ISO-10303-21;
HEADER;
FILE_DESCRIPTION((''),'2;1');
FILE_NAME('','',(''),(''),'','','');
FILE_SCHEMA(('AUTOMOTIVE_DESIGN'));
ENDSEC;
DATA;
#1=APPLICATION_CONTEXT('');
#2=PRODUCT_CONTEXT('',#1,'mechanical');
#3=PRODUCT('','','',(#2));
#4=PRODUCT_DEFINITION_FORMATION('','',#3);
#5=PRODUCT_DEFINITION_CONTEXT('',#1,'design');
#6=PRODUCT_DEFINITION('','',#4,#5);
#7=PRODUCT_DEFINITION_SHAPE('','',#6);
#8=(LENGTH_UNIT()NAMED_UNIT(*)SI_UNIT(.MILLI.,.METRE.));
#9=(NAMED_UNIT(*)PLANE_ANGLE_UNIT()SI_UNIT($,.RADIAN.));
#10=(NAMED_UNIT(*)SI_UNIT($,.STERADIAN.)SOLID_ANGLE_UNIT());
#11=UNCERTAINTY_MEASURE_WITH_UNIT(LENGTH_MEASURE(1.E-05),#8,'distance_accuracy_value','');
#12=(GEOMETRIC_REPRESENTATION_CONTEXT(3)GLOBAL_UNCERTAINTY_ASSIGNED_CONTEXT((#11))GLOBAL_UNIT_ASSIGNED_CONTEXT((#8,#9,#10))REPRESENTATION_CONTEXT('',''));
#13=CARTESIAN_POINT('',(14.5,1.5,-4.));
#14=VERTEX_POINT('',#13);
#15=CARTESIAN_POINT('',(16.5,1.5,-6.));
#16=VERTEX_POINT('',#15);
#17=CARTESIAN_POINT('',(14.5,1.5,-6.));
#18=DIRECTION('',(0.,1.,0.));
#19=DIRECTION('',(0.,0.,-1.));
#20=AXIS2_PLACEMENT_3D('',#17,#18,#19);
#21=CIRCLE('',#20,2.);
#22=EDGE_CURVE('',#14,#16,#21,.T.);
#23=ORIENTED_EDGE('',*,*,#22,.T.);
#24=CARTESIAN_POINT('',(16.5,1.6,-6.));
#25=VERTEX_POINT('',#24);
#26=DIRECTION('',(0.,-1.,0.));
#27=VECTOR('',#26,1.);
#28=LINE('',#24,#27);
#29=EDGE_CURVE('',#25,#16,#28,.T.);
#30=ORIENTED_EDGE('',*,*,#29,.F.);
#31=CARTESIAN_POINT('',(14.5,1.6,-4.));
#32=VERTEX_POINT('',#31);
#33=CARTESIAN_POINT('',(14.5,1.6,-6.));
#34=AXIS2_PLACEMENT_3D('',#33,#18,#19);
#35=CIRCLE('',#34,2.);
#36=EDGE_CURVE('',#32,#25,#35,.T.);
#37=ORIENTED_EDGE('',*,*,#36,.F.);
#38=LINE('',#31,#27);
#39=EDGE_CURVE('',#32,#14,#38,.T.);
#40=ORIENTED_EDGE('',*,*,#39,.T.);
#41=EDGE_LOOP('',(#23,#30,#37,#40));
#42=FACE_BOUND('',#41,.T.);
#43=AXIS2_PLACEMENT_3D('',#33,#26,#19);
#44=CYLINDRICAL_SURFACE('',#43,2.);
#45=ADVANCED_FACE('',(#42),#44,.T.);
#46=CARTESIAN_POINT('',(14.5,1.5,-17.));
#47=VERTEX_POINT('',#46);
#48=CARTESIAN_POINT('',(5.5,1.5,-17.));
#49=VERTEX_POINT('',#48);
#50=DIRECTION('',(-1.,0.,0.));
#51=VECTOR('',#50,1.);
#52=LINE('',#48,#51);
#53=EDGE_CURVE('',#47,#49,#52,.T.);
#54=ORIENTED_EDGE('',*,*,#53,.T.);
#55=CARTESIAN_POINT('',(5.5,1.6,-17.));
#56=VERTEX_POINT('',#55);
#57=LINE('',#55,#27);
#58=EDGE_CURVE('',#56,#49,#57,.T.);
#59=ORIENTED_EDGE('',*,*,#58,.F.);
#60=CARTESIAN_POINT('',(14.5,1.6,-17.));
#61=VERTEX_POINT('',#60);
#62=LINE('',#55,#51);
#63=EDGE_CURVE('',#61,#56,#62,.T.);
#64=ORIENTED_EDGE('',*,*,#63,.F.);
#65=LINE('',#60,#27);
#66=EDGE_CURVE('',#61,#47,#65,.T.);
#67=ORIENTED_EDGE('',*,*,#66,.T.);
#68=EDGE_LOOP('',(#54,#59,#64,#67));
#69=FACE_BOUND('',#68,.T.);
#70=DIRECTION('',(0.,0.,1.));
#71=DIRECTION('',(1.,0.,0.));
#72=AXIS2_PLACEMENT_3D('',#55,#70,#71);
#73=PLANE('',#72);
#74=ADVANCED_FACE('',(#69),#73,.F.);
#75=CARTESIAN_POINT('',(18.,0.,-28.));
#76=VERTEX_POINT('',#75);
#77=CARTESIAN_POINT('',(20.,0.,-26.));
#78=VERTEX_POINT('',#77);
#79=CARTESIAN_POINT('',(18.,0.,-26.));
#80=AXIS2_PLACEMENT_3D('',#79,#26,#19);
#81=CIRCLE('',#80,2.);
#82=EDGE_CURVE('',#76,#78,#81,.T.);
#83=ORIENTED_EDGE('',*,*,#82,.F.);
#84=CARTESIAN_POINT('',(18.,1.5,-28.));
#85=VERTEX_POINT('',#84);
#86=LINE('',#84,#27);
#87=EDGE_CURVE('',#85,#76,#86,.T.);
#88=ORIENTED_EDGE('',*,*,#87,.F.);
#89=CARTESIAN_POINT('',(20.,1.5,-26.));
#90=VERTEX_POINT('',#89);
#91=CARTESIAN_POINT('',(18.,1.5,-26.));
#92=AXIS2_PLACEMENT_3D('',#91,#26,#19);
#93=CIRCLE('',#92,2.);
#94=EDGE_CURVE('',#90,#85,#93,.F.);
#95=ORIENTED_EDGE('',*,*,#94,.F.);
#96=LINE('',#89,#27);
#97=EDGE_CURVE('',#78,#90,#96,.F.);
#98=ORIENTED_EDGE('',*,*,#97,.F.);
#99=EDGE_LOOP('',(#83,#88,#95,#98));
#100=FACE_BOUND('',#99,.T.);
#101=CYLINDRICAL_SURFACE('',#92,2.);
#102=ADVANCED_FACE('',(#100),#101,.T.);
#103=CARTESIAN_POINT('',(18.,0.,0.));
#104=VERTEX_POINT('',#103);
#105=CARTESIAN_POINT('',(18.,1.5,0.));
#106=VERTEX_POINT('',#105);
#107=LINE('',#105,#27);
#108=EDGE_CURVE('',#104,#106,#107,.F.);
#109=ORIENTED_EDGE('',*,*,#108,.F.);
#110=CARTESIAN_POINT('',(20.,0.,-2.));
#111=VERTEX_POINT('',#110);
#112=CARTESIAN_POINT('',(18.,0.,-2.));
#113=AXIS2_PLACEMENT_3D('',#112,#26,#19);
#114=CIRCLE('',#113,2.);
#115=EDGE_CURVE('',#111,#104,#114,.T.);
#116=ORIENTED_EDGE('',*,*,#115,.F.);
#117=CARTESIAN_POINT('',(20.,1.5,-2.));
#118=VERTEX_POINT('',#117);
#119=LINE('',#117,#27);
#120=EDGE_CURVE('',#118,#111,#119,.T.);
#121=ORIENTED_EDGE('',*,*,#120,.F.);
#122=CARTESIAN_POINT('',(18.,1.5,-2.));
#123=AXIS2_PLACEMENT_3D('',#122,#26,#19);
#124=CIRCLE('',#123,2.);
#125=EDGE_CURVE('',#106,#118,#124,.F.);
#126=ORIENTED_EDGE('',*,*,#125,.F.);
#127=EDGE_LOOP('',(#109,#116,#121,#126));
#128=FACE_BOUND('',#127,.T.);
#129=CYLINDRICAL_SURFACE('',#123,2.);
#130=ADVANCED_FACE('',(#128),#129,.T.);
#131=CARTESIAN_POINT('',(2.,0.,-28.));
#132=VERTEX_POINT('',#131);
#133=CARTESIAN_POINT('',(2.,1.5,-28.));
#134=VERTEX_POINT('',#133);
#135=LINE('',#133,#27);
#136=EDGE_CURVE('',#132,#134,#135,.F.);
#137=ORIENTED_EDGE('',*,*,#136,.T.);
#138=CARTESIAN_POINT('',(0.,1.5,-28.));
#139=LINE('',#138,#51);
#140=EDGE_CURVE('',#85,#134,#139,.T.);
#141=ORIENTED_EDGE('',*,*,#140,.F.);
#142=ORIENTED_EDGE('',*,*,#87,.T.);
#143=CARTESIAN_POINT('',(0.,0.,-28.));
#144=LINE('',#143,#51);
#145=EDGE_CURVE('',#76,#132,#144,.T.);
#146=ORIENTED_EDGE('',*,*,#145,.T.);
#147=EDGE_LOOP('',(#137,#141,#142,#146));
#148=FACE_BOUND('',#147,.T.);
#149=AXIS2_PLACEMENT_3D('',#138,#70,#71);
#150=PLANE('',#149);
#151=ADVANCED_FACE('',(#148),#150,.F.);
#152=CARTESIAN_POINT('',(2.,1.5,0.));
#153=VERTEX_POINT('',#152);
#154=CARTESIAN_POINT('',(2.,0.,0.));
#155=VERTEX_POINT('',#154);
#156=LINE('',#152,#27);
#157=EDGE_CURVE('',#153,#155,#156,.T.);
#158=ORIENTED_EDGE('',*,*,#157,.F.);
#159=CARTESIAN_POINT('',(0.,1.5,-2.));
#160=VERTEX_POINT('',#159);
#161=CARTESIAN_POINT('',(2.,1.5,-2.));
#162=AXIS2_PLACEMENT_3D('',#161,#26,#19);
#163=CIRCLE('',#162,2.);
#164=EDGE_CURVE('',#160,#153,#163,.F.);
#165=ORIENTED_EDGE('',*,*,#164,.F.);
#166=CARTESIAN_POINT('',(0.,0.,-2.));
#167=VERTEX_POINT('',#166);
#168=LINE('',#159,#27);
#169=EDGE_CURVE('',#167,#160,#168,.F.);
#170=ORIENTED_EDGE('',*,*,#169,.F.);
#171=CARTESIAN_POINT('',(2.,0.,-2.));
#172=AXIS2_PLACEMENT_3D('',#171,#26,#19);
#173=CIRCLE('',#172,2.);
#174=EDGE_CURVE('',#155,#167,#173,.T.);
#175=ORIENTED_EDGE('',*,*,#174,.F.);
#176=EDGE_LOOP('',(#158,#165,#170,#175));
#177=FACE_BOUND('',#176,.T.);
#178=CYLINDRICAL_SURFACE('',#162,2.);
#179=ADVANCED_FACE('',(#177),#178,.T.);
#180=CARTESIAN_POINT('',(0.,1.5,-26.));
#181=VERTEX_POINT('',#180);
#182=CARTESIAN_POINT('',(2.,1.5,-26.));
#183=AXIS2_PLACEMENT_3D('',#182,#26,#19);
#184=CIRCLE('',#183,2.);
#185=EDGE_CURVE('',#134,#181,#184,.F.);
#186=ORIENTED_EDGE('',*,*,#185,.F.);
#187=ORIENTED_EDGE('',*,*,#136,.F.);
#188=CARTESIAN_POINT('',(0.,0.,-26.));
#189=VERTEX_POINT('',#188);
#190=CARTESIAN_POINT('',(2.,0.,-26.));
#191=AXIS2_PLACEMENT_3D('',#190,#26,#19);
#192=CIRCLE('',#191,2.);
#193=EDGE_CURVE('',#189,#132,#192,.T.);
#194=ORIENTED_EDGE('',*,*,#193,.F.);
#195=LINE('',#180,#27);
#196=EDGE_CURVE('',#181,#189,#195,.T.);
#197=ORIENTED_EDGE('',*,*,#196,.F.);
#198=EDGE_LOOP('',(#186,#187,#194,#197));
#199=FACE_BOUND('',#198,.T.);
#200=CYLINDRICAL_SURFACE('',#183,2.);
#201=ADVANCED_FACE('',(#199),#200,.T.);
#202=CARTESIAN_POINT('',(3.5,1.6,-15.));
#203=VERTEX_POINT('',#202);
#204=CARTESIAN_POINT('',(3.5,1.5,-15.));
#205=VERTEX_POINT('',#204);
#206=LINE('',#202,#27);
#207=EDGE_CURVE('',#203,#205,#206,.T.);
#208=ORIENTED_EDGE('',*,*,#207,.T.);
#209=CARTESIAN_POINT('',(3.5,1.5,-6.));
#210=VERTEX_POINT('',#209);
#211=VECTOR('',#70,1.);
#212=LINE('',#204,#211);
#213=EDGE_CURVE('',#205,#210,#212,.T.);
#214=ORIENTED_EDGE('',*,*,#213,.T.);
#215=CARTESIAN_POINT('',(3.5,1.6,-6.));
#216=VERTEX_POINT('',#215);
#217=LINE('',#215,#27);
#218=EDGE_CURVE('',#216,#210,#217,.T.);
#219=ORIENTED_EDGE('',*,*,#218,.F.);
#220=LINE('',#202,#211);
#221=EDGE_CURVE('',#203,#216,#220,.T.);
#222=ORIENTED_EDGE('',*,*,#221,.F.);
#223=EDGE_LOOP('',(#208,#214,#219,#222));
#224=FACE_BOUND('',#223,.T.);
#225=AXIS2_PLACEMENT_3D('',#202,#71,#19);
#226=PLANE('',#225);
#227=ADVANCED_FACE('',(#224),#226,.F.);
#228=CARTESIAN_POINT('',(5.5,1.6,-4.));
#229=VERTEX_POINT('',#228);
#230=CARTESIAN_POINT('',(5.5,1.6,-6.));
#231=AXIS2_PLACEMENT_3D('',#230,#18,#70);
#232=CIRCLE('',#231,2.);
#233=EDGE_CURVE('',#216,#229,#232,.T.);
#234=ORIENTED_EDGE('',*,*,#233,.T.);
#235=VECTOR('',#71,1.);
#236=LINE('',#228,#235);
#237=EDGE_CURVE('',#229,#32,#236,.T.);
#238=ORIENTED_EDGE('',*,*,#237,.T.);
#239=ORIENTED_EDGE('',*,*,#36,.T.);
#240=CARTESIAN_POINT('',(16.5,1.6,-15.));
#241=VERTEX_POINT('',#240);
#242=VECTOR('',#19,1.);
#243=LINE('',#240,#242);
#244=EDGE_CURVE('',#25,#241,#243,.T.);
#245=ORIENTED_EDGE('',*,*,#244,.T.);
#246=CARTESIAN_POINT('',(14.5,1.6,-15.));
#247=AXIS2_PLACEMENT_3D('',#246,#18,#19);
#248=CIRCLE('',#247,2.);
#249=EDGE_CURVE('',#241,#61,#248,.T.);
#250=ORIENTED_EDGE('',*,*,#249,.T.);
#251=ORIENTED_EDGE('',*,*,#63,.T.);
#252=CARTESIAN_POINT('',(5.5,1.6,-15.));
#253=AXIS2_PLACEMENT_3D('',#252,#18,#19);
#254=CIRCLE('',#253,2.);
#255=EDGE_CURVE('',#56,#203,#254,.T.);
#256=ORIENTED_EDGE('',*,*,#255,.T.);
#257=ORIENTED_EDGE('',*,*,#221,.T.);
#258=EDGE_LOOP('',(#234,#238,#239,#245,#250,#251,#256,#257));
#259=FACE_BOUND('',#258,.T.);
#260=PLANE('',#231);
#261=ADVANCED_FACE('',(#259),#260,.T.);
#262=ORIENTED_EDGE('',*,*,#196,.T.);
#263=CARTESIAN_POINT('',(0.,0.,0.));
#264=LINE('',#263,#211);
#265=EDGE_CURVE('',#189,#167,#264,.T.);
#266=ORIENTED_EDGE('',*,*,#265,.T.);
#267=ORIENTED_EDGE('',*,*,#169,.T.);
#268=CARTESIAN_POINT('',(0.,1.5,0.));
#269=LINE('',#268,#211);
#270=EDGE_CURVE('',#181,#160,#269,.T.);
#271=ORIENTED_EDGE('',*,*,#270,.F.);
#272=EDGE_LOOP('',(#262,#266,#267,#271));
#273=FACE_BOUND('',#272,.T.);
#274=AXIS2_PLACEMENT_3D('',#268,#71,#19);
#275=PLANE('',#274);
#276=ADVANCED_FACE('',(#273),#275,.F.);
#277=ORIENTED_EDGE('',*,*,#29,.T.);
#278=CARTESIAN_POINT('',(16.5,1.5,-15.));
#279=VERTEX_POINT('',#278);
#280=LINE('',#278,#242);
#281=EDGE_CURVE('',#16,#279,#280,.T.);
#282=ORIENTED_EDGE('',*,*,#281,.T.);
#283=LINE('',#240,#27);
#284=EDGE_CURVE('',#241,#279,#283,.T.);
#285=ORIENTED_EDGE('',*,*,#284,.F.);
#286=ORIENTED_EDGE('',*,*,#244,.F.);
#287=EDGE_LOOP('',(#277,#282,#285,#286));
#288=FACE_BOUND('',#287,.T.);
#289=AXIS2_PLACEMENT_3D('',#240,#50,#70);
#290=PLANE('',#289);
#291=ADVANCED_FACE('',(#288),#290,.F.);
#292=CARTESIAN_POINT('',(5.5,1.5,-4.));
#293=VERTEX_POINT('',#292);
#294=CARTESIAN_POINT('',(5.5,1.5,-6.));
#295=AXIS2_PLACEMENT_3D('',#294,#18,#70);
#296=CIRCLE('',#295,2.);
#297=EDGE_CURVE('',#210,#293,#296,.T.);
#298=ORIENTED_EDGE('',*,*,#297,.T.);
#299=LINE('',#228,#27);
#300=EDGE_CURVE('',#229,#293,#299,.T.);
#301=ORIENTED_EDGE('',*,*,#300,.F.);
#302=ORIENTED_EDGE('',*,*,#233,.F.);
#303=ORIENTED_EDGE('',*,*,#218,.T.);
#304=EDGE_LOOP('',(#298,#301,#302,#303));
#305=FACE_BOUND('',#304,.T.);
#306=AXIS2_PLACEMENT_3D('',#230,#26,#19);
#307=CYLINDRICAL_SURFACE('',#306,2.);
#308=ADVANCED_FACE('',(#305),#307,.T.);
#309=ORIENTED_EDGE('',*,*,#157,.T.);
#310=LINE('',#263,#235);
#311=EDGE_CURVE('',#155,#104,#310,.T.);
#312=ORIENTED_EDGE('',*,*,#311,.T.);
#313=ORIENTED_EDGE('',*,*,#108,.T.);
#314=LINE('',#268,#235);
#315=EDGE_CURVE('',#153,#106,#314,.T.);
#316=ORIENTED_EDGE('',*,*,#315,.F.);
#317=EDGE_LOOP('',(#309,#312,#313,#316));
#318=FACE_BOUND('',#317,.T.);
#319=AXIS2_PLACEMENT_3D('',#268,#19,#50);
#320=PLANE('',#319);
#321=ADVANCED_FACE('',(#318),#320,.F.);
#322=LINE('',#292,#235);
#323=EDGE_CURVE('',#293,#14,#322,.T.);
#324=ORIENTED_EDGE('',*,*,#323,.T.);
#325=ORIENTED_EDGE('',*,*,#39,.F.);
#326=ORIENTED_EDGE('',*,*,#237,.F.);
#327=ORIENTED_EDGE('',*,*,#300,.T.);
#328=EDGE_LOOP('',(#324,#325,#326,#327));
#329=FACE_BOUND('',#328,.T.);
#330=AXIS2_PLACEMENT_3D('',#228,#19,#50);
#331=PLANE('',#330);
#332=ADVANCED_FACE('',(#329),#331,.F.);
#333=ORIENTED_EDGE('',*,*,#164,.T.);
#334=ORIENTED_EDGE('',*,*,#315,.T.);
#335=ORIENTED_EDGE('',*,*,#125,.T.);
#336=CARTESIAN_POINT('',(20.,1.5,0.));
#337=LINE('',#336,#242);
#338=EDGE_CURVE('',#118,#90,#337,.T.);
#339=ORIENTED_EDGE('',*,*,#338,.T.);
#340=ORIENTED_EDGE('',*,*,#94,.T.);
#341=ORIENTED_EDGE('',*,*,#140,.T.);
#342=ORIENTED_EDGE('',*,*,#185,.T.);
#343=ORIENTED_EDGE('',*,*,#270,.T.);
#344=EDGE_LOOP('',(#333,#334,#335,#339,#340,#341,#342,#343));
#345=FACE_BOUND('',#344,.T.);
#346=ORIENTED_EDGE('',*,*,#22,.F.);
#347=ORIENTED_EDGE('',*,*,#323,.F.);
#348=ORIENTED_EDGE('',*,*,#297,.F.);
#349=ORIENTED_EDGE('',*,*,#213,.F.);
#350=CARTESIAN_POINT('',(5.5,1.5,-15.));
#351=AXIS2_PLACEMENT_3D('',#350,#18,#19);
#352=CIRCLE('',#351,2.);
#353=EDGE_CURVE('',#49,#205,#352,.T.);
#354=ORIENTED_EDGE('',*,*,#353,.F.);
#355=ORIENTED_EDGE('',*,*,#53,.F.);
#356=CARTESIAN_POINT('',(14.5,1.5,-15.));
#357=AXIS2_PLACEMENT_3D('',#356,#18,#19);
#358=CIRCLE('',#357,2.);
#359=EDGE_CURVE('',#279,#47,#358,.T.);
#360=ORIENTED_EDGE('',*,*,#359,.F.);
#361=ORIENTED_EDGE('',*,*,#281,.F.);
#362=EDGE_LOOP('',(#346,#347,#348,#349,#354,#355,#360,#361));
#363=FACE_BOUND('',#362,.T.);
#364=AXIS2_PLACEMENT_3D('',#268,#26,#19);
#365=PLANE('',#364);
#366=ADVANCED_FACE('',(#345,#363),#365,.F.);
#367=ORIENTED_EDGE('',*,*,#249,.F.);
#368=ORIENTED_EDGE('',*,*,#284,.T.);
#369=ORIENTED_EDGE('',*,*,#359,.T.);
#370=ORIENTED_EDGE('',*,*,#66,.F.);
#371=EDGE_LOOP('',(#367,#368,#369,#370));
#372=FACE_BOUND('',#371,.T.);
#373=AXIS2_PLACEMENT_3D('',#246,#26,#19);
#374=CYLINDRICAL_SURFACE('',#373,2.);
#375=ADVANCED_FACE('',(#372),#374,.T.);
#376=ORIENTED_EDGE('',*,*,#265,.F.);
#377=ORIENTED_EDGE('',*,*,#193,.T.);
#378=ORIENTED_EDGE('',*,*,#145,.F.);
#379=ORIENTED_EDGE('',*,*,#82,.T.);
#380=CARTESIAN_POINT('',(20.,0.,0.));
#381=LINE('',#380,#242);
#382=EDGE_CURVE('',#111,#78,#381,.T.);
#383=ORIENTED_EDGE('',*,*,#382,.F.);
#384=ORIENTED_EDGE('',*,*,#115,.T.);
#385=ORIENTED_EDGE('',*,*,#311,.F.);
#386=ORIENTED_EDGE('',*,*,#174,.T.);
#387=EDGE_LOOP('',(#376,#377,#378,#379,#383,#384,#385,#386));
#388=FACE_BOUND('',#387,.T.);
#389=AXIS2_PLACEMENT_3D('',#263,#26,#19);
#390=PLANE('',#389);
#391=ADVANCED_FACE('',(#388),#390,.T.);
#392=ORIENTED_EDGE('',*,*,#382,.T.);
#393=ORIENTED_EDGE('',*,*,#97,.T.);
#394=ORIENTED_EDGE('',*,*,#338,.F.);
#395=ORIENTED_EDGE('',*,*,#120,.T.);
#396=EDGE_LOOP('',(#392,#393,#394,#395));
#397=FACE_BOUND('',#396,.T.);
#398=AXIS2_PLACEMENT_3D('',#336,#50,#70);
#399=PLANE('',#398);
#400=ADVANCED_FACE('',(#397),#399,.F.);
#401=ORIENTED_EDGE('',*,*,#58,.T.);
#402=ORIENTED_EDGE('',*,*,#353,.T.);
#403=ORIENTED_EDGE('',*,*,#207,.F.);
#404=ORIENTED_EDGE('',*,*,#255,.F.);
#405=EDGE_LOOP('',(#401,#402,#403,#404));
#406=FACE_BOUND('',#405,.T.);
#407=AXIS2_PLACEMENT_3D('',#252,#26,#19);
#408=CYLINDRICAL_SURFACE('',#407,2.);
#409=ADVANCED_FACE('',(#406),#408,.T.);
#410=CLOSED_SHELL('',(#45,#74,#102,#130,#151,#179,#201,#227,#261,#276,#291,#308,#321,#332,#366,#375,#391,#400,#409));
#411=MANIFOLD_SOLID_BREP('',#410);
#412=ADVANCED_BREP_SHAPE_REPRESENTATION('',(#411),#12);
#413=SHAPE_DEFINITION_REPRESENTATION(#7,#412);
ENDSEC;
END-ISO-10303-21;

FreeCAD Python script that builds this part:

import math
import FreeCAD as App
import Part
import Sketcher

V = App.Vector
Q = App.Units.Quantity


def edges_at(feature, points):
    """Names of the edges that pass closest to the given points."""
    edges = feature.Shape.Edges
    near = lambda p: min(range(len(edges)), key=lambda i: edges[i].distToShape(Part.Vertex(*p))[0])
    return sorted({f"Edge{near(p) + 1}" for p in points})

doc = App.newDocument("Part")
params = doc.addObject("Spreadsheet::Sheet", "Params")
for row, (alias, value) in enumerate([
    ("sketch1_width", "20 mm"),
    ("sketch1_height", "28 mm"),
    ("pad1_length", "1.5 mm"),
    ("sketch2_radius", "2 mm"),
    ("sketch2_width", "9 mm"),
    ("pad2_length", "0.1 mm"),
    ("fillet_radius", "2 mm"),
], start=1):
    params.set(f"A{row}", alias)
    params.set(f"B{row}", "=" + value)
    params.setAlias(f"B{row}", alias)

body = doc.addObject("PartDesign::Body", "Body")

# Sketch on XZ plane
sketch1 = doc.addObject("Sketcher::SketchObject", "Sketch")
body.addObject(sketch1)
sketch1.AttachmentSupport = (doc.XZ_Plane, [""])
sketch1.MapMode = "FlatFace"
sketch1.addGeometry([
    Part.LineSegment(V(0, -28, 0), V(0, 0, 0)),
    Part.LineSegment(V(0, 0, 0), V(20, 0, 0)),
    Part.LineSegment(V(20, 0, 0), V(20, -28, 0)),
    Part.LineSegment(V(20, -28, 0), V(0, -28, 0)),
], False)
sketch1.addConstraint([
    Sketcher.Constraint("Coincident", 0, 2, 1, 1),
    Sketcher.Constraint("Coincident", 1, 2, 2, 1),
    Sketcher.Constraint("Coincident", 2, 2, 3, 1),
    Sketcher.Constraint("Coincident", 3, 2, 0, 1),
    Sketcher.Constraint("Vertical", 0),
    Sketcher.Constraint("Horizontal", 1),
    Sketcher.Constraint("Vertical", 2),
    Sketcher.Constraint("Horizontal", 3),
    Sketcher.Constraint("Coincident", 0, 2, -1, 1),
    Sketcher.Constraint("DistanceX", 1, 1, 1, 2, Q("20 mm")),
    Sketcher.Constraint("DistanceY", 0, 1, 0, 2, Q("28 mm")),
])
sketch1.setExpression("Constraints[9]", "Params.sketch1_width")
sketch1.setExpression("Constraints[10]", "Params.sketch1_height")
pad1 = doc.addObject("PartDesign::Pad", "Pad")
body.addObject(pad1)
pad1.Profile = sketch1
pad1.setExpression("Length", "Params.pad1_length")
pad1.Reversed = True

# Sketch on XZ plane
sketch2 = doc.addObject("Sketcher::SketchObject", "Sketch001")
body.addObject(sketch2)
sketch2.AttachmentSupport = (doc.XZ_Plane, [""])
sketch2.MapMode = "FlatFace"
sketch2.AttachmentOffset = App.Placement(V(0, 0, -1.5), App.Rotation())
sketch2.addGeometry([
    Part.LineSegment(V(14.5, -17, 0), V(5.5, -17, 0)),  # 0
    Part.ArcOfCircle(Part.Circle(V(5.5, -15, 0), V(0, 0, 1), 2), math.radians(-180), math.radians(-90)),  # 1
    Part.LineSegment(V(3.5, -15, 0), V(3.5, -6, 0)),  # 2
    Part.ArcOfCircle(Part.Circle(V(5.5, -6, 0), V(0, 0, 1), 2), math.radians(90), math.radians(180)),  # 3
    Part.LineSegment(V(5.5, -4, 0), V(14.5, -4, 0)),  # 4
    Part.ArcOfCircle(Part.Circle(V(14.5, -6, 0), V(0, 0, 1), 2), math.radians(0), math.radians(90)),  # 5
    Part.LineSegment(V(16.5, -6, 0), V(16.5, -15, 0)),  # 6
    Part.ArcOfCircle(Part.Circle(V(14.5, -15, 0), V(0, 0, 1), 2), math.radians(-90), math.radians(0)),  # 7
], False)
sketch2.addConstraint([
    Sketcher.Constraint("Tangent", 0, 2, 1, 2),
    Sketcher.Constraint("Tangent", 1, 1, 2, 1),
    Sketcher.Constraint("Tangent", 2, 2, 3, 2),
    Sketcher.Constraint("Tangent", 3, 1, 4, 1),
    Sketcher.Constraint("Tangent", 4, 2, 5, 2),
    Sketcher.Constraint("Tangent", 5, 1, 6, 1),
    Sketcher.Constraint("Tangent", 6, 2, 7, 2),
    Sketcher.Constraint("Tangent", 7, 1, 0, 1),
    Sketcher.Constraint("Horizontal", 0),
    Sketcher.Constraint("Vertical", 2),
    Sketcher.Constraint("Horizontal", 4),
    Sketcher.Constraint("Vertical", 6),
    Sketcher.Constraint("Equal", 1, 3),
    Sketcher.Constraint("Equal", 3, 5),
    Sketcher.Constraint("Equal", 5, 7),
    Sketcher.Constraint("Equal", 4, 2),
    Sketcher.Constraint("Radius", 1, Q("2 mm")),
    Sketcher.Constraint("DistanceX", 0, 2, 0, 1, Q("9 mm")),
    Sketcher.Constraint("DistanceY", 1, 3, -1, 1, Q("15 mm")),
    Sketcher.Constraint("DistanceX", -1, 1, 1, 3, Q("5.5 mm")),
])
sketch2.setExpression("Constraints[16]", "Params.sketch2_radius")
sketch2.setExpression("Constraints[17]", "Params.sketch2_width")
pad2 = doc.addObject("PartDesign::Pad", "Pad001")
body.addObject(pad2)
pad2.Profile = sketch2
pad2.setExpression("Length", "Params.pad2_length")
pad2.Reversed = True
doc.recompute()

fillet = doc.addObject("PartDesign::Fillet", "Fillet")
body.addObject(fillet)
fillet.Base = (pad2, edges_at(pad2, [
    (0, 0.75, -28),
    (20, 0.75, -28),
    (20, 0.75, 0),
    (0, 0.75, 0),
]))
fillet.setExpression("Radius", "Params.fillet_radius")

doc.recompute()
